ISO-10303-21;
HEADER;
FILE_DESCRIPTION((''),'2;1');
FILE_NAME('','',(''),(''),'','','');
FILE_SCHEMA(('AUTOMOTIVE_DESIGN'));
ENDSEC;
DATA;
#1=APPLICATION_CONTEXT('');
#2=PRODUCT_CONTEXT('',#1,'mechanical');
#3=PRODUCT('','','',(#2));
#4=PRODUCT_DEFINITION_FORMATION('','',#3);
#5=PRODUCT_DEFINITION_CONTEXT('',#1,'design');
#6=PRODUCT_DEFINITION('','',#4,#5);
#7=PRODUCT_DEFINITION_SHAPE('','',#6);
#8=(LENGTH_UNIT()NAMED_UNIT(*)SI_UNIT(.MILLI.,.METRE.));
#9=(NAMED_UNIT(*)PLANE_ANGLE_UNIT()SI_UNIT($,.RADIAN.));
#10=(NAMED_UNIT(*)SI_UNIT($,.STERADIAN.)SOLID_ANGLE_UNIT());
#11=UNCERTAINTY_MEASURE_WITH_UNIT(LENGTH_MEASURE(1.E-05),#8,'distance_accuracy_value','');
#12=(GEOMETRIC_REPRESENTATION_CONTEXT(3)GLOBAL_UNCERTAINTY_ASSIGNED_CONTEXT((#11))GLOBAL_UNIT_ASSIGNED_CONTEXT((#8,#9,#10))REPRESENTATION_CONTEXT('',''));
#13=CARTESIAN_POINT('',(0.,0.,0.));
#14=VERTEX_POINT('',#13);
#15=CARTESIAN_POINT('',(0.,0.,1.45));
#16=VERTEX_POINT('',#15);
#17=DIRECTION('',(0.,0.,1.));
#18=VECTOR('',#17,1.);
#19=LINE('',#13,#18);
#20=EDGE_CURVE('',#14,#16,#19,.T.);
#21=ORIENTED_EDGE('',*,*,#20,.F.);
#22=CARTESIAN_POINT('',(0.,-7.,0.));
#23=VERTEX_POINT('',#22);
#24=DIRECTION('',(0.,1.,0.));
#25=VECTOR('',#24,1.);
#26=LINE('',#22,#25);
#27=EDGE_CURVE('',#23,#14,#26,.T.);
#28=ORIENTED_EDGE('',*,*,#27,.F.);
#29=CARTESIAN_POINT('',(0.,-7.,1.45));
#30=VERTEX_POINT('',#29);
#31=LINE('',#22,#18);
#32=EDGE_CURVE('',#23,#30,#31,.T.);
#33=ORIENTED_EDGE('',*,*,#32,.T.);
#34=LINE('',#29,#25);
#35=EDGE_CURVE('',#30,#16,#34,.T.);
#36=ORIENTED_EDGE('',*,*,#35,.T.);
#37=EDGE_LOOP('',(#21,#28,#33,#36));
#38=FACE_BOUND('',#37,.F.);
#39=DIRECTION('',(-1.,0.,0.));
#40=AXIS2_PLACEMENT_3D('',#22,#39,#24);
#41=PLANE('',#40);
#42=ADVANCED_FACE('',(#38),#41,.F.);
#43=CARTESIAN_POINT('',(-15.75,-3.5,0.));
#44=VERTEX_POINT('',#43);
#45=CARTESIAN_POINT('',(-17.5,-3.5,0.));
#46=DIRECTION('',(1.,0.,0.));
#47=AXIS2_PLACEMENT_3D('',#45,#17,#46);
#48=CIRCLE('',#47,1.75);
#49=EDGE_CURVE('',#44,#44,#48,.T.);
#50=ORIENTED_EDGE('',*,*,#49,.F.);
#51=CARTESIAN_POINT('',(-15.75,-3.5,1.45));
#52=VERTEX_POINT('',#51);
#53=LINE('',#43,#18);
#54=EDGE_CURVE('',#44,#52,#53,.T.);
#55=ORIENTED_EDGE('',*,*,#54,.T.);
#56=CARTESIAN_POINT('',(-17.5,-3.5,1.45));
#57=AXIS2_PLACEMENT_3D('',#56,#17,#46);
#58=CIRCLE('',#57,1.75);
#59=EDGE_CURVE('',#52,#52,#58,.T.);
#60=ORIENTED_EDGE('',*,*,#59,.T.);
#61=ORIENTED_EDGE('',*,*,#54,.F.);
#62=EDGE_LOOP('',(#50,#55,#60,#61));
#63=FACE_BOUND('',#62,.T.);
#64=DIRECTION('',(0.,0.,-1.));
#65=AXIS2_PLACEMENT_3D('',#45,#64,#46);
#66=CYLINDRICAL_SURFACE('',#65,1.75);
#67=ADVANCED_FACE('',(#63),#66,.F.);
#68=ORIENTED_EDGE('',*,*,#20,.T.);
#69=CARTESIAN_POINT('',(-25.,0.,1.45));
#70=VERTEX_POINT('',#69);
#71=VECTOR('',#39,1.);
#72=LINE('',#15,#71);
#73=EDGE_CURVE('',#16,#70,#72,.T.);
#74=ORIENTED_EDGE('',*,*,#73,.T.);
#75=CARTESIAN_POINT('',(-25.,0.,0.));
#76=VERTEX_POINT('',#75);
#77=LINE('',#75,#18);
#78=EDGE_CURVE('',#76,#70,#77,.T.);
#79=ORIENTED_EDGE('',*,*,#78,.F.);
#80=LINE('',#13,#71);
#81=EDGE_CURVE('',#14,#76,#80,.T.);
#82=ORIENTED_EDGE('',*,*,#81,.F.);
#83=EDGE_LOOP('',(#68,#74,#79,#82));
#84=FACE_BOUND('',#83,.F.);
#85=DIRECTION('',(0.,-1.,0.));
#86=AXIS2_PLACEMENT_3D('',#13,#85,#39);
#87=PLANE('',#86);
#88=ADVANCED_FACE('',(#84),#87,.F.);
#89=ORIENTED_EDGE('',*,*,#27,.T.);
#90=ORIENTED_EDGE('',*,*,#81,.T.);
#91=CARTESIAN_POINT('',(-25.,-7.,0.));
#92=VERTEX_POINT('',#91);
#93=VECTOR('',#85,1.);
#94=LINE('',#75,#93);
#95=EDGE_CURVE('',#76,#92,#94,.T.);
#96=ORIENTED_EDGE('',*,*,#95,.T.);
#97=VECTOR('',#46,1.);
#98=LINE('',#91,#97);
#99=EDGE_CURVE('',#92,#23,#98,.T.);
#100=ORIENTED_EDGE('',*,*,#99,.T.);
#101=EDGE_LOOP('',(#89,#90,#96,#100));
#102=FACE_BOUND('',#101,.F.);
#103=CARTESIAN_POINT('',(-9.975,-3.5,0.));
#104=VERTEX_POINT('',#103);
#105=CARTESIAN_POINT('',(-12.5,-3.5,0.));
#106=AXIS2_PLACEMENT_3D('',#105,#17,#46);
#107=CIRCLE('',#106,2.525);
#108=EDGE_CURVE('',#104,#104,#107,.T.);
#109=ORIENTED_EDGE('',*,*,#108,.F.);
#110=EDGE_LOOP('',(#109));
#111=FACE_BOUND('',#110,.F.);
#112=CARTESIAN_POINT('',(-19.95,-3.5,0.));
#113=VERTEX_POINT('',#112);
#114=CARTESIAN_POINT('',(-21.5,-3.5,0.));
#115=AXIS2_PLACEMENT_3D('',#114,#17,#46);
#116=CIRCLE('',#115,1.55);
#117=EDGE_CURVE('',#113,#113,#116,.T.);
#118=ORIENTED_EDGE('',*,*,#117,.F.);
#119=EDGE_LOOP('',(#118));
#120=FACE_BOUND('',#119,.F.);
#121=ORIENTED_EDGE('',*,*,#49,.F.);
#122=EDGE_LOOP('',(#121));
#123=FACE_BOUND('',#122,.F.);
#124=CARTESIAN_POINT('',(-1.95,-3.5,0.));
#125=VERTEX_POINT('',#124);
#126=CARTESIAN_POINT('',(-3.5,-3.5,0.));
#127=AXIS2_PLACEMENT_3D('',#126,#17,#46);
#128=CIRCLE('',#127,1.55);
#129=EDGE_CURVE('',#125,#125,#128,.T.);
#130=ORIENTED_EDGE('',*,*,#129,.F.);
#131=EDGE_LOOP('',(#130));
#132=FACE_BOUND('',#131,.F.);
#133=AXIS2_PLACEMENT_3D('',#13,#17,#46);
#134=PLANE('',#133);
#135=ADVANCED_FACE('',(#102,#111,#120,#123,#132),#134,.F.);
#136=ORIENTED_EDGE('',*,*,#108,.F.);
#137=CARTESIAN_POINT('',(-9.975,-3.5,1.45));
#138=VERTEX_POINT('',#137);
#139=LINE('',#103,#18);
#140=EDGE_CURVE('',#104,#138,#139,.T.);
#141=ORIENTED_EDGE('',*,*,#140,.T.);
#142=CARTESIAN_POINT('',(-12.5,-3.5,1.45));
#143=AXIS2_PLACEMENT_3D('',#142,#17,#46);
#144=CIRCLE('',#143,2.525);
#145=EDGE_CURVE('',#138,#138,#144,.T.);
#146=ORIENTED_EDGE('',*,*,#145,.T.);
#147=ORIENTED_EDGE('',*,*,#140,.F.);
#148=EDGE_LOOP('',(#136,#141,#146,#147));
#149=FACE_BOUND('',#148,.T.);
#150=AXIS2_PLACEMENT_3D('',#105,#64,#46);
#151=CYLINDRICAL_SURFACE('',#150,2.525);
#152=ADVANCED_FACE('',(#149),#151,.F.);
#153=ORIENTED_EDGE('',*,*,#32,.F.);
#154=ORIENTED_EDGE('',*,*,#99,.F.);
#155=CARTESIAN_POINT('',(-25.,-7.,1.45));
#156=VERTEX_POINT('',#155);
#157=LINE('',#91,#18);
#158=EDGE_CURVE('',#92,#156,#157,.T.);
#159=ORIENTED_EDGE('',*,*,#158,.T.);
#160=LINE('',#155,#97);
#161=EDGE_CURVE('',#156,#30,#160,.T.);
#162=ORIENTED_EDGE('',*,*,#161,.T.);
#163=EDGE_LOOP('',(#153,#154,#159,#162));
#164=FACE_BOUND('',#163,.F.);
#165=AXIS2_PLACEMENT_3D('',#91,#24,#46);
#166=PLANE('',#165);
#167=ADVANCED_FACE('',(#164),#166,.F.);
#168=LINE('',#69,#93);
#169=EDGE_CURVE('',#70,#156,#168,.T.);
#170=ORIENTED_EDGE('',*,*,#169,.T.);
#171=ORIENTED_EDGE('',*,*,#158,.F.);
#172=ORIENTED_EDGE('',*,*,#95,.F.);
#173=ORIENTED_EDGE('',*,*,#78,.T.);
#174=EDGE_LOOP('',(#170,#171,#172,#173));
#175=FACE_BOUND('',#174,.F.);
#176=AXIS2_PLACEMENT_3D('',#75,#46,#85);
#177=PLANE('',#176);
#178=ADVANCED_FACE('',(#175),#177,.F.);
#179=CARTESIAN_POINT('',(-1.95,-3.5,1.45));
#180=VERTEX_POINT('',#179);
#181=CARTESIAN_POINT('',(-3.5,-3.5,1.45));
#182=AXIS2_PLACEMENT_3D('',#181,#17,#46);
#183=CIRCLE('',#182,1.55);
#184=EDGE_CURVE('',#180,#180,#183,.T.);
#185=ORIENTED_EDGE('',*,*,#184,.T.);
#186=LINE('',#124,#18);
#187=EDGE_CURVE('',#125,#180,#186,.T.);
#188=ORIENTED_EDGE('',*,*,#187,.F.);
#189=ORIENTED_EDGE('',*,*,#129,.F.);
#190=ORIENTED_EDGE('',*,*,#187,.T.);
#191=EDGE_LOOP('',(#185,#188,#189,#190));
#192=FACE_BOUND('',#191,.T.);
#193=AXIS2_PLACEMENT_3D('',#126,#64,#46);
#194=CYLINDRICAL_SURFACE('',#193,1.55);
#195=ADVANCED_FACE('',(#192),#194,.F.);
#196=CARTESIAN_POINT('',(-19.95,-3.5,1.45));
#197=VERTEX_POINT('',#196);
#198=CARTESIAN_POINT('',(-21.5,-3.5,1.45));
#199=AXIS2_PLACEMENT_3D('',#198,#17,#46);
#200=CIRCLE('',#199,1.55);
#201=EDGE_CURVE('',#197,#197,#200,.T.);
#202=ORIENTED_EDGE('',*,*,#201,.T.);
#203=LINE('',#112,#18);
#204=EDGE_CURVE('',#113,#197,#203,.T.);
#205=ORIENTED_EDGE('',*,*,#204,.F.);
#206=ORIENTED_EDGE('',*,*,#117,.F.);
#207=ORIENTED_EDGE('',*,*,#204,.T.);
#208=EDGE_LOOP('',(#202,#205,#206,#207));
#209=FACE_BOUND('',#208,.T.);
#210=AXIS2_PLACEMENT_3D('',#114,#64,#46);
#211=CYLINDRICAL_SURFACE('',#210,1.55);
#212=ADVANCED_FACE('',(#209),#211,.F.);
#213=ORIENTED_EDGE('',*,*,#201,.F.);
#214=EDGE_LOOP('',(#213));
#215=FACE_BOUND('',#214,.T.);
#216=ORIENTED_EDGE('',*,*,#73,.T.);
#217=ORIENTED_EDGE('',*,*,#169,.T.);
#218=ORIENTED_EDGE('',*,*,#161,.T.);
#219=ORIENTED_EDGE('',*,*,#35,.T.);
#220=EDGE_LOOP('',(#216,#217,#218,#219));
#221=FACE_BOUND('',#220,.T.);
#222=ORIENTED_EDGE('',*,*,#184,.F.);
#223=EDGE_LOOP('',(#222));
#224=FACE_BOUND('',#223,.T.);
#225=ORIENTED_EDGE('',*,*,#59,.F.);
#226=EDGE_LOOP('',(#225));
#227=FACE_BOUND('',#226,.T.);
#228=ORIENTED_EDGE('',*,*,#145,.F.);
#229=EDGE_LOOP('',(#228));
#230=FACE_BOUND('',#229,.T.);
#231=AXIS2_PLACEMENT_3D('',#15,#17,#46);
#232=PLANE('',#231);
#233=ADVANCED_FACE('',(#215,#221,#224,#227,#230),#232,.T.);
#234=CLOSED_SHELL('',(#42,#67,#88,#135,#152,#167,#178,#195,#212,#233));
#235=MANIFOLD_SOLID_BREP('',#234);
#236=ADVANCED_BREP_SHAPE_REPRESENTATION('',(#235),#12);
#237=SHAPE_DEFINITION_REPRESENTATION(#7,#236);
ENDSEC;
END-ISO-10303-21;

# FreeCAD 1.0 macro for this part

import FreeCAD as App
import Part
import Sketcher

V = App.Vector
Q = App.Units.Quantity


def add_polygon(sketch, points):
    """Adds a closed chain of lines whose ends are joined by coincident constraints."""
    first, n = sketch.GeometryCount, len(points)
    for a, b in zip(points, points[1:] + points[:1]):
        sketch.addGeometry(Part.LineSegment(App.Vector(*a, 0), App.Vector(*b, 0)), False)
    for i in range(n):
        sketch.addConstraint(Sketcher.Constraint("Coincident", first + i, 2, first + (i + 1) % n, 1))

doc = App.newDocument("Part")
body = doc.addObject("PartDesign::Body", "Body")

sketch1 = body.newObject("Sketcher::SketchObject", "Sketch")
sketch1.AttachmentSupport = (doc.getObject("XY_Plane"), [""])
sketch1.MapMode = "FlatFace"
add_polygon(sketch1, [(0, -7), (0, 0), (-25, 0), (-25, -7)])
sketch1.addGeometry(Part.Circle(V(-21.5, -3.5, 0), V(0, 0, 1), 1.6), False)
sketch1.addGeometry(Part.Circle(V(-17.5, -3.5, 0), V(0, 0, 1), 1.8), False)
sketch1.addGeometry(Part.Circle(V(-12.5, -3.5, 0), V(0, 0, 1), 2.5), False)
sketch1.addGeometry(Part.Circle(V(-3.5, -3.5, 0), V(0, 0, 1), 1.6), False)
sketch1.addConstraint([
    Sketcher.Constraint("Vertical", 0),
    Sketcher.Constraint("Horizontal", 1),
    Sketcher.Constraint("Vertical", 2),
    Sketcher.Constraint("Horizontal", 3),
    Sketcher.Constraint("Coincident", 0, 2, -1, 1),
    Sketcher.Constraint("Equal", 4, 7),
    Sketcher.Constraint("Horizontal", 4, 3, 5, 3),
    Sketcher.Constraint("Horizontal", 5, 3, 6, 3),
    Sketcher.Constraint("Horizontal", 6, 3, 7, 3),
    Sketcher.Constraint("Diameter", 4, Q("3.1 mm")),
    Sketcher.Constraint("Diameter", 5, Q("3.5 mm")),
    Sketcher.Constraint("Diameter", 6, Q("5.05 mm")),
    Sketcher.Constraint("DistanceX", 1, 2, 1, 1, Q("25 mm")),
    Sketcher.Constraint("DistanceY", 0, 1, 0, 2, Q("7 mm")),
    Sketcher.Constraint("DistanceX", 4, 3, 5, 3, Q("4 mm")),
    Sketcher.Constraint("DistanceX", 5, 3, 6, 3, Q("5 mm")),
    Sketcher.Constraint("DistanceX", 6, 3, 7, 3, Q("9 mm")),
    Sketcher.Constraint("DistanceX", 4, 3, -1, 1, Q("21.5 mm")),
    Sketcher.Constraint("DistanceY", 4, 3, -1, 1, Q("3.5 mm")),
])
pad1 = body.newObject("PartDesign::Pad", "Pad")
pad1.Profile = sketch1
pad1.Length = 1.45

doc.recompute()
